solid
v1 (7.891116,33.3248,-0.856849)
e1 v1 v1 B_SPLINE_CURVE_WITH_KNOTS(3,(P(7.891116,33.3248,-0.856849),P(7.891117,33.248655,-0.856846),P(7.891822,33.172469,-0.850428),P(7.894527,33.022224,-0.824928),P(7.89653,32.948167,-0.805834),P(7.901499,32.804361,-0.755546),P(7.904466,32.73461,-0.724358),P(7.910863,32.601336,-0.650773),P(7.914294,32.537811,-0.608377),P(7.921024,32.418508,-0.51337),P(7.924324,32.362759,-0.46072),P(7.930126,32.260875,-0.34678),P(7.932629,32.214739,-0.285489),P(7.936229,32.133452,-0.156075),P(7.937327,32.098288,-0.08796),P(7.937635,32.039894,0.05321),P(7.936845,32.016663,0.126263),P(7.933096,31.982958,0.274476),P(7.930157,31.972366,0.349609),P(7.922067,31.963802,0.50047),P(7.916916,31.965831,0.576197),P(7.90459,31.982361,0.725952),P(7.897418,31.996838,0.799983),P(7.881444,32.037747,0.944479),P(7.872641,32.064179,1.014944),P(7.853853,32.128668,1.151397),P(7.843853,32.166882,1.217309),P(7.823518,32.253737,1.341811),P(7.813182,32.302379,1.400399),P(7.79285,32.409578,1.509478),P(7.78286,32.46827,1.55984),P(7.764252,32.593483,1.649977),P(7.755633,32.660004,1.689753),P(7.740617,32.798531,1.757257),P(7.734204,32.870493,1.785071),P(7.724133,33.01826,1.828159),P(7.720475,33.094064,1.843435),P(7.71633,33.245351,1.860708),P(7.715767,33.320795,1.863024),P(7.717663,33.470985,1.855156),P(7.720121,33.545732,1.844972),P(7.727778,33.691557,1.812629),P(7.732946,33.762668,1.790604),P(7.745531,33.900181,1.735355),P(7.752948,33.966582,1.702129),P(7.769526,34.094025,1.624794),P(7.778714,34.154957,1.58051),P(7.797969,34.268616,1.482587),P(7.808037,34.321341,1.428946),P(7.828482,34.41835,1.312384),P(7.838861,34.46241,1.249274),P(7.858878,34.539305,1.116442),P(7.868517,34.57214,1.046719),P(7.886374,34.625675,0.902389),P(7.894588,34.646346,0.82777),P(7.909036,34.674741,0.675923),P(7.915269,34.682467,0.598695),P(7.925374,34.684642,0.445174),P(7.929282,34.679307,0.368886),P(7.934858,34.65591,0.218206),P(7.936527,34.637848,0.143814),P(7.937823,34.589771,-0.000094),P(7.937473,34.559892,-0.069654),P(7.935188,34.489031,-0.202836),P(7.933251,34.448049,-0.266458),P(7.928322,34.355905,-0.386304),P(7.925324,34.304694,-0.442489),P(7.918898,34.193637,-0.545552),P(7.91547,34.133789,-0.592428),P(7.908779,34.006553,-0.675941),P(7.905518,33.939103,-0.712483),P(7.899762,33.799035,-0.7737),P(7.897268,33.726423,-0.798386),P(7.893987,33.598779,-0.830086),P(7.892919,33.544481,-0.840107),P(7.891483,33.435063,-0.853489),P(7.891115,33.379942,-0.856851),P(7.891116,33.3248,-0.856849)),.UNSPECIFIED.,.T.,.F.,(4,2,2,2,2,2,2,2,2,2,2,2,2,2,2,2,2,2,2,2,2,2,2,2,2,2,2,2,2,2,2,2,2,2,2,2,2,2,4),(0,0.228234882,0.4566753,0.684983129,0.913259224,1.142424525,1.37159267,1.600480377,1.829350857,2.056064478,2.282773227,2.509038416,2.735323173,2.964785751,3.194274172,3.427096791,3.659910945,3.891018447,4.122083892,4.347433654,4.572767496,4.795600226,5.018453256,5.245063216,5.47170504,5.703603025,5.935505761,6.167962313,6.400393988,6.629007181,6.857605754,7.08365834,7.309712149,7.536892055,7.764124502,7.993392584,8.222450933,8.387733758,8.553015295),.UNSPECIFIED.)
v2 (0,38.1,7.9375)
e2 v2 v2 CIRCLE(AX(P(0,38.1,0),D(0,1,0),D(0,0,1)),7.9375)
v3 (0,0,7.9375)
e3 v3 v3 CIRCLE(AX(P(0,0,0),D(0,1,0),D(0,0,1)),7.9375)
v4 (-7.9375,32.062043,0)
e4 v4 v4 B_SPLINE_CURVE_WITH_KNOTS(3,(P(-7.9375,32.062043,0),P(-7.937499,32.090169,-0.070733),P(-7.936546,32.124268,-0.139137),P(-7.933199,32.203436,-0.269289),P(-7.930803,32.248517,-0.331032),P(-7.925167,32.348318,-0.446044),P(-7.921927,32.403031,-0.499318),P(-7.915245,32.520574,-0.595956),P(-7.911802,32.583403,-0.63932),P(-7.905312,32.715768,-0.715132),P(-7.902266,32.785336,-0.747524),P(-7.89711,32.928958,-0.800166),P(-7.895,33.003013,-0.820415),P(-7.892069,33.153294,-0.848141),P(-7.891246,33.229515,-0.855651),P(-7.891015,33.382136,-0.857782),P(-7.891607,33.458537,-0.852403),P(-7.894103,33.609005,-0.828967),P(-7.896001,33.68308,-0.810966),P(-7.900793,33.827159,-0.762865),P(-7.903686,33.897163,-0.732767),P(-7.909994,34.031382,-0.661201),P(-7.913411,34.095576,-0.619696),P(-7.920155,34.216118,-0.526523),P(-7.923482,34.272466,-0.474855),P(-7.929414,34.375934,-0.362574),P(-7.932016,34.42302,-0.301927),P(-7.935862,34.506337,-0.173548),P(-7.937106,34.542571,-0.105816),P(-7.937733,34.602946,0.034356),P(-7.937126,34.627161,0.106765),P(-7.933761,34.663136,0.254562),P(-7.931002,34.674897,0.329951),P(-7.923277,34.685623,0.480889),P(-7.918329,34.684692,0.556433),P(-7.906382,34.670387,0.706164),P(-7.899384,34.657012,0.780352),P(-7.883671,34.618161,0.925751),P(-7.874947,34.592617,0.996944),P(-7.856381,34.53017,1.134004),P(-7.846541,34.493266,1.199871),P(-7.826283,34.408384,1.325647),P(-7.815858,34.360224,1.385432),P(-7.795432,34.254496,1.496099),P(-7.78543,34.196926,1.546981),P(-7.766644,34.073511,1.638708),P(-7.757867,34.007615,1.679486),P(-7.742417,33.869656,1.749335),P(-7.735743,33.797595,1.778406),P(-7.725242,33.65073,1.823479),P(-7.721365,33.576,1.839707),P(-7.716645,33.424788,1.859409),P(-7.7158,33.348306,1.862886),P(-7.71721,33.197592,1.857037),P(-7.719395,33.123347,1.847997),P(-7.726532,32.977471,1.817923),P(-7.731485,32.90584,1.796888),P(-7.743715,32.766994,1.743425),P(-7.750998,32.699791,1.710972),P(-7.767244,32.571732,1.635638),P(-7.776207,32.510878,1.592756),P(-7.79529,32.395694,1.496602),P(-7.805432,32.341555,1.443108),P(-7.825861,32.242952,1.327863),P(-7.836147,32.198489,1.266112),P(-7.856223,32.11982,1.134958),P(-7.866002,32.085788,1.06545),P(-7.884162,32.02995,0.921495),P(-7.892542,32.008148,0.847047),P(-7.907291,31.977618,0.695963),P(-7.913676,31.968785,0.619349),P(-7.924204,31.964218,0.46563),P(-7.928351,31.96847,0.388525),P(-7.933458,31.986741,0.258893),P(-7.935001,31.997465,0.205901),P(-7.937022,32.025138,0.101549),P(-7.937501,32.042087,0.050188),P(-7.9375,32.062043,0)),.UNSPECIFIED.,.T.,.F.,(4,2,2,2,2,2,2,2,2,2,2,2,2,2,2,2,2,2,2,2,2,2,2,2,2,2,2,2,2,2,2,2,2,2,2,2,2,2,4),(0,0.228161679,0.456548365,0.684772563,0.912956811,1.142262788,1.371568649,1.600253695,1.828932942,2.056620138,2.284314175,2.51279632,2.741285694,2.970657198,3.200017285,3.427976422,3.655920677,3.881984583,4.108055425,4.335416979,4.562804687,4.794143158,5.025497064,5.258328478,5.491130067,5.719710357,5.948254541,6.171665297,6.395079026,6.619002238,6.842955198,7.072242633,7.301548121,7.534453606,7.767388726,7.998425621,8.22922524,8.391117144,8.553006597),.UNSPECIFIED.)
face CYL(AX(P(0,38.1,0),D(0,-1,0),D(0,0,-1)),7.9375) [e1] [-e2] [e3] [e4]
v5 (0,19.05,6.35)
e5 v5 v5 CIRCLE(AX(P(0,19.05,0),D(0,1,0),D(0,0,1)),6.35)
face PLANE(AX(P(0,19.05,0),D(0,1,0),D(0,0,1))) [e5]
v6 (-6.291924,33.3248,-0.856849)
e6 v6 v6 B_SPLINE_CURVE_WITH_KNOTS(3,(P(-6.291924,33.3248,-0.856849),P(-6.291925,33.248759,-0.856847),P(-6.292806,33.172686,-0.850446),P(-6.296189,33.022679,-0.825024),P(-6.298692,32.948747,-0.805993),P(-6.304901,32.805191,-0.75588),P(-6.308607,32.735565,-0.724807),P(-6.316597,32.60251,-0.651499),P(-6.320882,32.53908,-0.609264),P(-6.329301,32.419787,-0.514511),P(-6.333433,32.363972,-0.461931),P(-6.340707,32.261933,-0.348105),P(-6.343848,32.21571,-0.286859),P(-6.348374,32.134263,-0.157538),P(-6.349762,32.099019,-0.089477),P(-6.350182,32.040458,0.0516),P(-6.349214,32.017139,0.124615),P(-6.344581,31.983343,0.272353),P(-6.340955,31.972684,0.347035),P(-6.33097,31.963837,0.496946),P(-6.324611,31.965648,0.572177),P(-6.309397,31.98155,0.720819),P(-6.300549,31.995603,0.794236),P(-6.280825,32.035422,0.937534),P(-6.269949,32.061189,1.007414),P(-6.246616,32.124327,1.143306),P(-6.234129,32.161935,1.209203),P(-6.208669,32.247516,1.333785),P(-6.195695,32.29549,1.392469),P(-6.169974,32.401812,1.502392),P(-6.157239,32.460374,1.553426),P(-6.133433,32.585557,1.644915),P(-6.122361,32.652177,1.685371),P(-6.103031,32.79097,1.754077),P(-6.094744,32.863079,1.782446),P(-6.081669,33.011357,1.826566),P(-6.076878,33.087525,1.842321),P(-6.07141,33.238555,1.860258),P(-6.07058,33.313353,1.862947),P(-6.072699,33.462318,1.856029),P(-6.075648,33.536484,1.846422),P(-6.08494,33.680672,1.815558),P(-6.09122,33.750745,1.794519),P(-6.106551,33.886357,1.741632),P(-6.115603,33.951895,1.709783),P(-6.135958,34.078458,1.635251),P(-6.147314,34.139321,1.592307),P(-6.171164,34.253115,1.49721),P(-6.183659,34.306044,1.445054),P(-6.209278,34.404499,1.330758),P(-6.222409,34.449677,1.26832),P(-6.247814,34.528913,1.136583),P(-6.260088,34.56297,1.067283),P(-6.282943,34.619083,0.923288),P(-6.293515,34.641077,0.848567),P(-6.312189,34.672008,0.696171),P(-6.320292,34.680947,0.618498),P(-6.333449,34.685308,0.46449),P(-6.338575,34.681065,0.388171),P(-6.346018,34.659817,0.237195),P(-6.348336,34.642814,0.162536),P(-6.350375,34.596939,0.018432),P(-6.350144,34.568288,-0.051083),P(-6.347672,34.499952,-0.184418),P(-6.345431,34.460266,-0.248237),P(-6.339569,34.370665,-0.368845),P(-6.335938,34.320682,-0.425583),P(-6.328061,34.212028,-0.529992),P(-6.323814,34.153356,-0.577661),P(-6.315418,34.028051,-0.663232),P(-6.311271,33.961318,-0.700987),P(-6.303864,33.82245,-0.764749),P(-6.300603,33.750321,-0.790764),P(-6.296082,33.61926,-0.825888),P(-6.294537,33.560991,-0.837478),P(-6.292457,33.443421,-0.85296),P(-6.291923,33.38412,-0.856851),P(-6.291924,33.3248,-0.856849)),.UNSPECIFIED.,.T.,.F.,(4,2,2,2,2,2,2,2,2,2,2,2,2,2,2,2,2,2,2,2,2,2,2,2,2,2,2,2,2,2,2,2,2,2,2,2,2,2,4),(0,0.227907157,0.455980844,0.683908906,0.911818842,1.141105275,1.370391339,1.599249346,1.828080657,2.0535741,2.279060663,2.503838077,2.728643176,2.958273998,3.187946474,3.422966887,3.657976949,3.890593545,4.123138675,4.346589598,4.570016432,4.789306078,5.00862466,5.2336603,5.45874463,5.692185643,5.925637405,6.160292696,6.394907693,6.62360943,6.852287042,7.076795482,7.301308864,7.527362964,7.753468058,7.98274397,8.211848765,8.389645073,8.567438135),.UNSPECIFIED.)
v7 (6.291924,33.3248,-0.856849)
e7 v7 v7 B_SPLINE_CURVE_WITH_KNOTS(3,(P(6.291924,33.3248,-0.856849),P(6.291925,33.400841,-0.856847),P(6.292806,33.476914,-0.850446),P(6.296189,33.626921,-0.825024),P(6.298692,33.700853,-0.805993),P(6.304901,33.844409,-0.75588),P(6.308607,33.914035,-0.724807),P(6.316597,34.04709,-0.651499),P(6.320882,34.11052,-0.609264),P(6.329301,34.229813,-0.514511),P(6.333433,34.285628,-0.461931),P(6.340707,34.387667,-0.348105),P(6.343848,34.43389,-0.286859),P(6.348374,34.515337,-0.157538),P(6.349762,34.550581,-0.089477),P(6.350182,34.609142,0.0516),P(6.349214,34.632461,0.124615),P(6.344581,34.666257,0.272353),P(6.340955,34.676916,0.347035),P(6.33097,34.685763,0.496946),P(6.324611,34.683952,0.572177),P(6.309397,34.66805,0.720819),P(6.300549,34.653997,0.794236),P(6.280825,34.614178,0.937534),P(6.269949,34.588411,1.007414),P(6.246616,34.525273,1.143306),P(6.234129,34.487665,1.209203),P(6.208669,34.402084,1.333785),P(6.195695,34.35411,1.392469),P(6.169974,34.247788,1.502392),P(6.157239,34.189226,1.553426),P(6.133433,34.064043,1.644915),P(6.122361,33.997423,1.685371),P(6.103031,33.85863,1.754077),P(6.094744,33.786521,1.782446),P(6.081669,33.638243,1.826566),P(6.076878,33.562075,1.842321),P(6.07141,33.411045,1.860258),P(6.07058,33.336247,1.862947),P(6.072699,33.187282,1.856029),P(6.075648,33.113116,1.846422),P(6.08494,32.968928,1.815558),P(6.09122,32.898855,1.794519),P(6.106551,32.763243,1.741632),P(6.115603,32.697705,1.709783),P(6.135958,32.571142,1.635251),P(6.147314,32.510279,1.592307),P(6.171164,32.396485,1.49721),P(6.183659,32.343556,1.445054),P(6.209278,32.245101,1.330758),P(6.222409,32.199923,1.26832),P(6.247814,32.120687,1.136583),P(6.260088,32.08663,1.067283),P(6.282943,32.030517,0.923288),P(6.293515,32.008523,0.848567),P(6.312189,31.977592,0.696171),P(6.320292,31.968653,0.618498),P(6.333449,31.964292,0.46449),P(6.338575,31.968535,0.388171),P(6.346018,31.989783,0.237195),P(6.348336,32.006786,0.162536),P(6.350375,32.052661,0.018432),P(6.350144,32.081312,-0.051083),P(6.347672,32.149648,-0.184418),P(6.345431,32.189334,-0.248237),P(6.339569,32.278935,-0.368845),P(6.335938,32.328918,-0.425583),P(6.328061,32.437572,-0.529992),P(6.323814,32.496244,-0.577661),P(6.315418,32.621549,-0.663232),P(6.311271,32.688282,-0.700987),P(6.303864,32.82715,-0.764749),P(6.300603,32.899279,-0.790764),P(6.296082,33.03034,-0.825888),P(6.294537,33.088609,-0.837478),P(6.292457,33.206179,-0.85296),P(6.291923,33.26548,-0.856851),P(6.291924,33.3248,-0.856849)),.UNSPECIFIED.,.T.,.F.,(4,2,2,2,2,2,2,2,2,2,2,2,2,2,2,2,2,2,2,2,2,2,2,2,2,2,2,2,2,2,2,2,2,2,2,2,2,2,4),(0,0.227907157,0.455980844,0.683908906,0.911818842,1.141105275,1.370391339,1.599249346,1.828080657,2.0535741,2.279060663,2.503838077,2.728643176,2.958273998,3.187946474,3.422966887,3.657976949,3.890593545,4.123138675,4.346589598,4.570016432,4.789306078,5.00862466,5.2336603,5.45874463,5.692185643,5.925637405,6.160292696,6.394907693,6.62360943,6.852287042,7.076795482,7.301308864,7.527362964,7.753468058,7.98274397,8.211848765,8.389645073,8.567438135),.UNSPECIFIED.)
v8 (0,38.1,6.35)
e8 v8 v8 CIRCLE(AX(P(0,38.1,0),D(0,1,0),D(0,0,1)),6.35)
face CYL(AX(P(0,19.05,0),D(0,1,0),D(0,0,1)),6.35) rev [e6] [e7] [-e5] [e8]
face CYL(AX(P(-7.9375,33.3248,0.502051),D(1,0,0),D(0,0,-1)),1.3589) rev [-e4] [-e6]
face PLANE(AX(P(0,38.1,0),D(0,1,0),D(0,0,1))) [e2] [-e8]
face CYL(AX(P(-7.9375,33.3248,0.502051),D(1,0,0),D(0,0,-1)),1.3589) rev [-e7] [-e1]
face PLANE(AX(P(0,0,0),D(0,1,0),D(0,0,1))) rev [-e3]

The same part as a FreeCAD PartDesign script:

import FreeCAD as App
import Part
import Sketcher
from FreeCAD import Vector
Q = App.Units.Quantity

doc = App.newDocument("Part")
body = doc.addObject("PartDesign::Body", "Body")

# Sketch on XZ plane
sketch1 = body.newObject("Sketcher::SketchObject", "Sketch")
sketch1.AttachmentSupport = (doc.getObject("XZ_Plane"), [""])
sketch1.MapMode = "FlatFace"
sketch1.addGeometry(Part.Circle(Vector(0, 0, 0), Vector(0, 0, 1), 8), False)
sketch1.addConstraint(Sketcher.Constraint("Coincident", 0, 3, -1, 1))
sketch1.addConstraint(Sketcher.Constraint("Diameter", 0, Q("0.625 in")))
pad1 = body.newObject("PartDesign::Pad", "Pad")
pad1.Profile = sketch1
pad1.Length = Q("1.5 in")
pad1.Reversed = True

# Sketch on XZ plane
sketch2 = body.newObject("Sketcher::SketchObject", "Sketch001")
sketch2.AttachmentSupport = (doc.getObject("XZ_Plane"), [""])
sketch2.MapMode = "FlatFace"
sketch2.AttachmentOffset = App.Placement(Vector(0, 0, -1.5 * 25.4), App.Rotation())
sketch2.addGeometry(Part.Circle(Vector(0, 0, 0), Vector(0, 0, 1), 6), False)
sketch2.addConstraint(Sketcher.Constraint("Coincident", 0, 3, -1, 1))
sketch2.addConstraint(Sketcher.Constraint("Diameter", 0, Q("0.5 in")))
pocket1 = body.newObject("PartDesign::Pocket", "Pocket")
pocket1.Profile = sketch2
pocket1.Length = Q("0.75 in")
pocket1.Reversed = True

# Sketch on YZ plane
sketch3 = body.newObject("Sketcher::SketchObject", "Sketch002")
sketch3.AttachmentSupport = (doc.getObject("YZ_Plane"), [""])
sketch3.MapMode = "FlatFace"
sketch3.addGeometry(Part.Circle(Vector(33.3, 0.5, 0), Vector(0, 0, 1), 1.4), False)
sketch3.addConstraint(Sketcher.Constraint("Diameter", 0, Q("0.107 in")))
sketch3.addConstraint(Sketcher.Constraint("DistanceX", -1, 1, 0, 3, Q("1.312 in")))
sketch3.addConstraint(Sketcher.Constraint("DistanceY", -1, 1, 0, 3, Q("0.502051 mm")))
pocket2 = body.newObject("PartDesign::Pocket", "Pocket001")
pocket2.Profile = sketch3
pocket2.Type = "ThroughAll"
pocket2.Midplane = True

doc.recompute()
